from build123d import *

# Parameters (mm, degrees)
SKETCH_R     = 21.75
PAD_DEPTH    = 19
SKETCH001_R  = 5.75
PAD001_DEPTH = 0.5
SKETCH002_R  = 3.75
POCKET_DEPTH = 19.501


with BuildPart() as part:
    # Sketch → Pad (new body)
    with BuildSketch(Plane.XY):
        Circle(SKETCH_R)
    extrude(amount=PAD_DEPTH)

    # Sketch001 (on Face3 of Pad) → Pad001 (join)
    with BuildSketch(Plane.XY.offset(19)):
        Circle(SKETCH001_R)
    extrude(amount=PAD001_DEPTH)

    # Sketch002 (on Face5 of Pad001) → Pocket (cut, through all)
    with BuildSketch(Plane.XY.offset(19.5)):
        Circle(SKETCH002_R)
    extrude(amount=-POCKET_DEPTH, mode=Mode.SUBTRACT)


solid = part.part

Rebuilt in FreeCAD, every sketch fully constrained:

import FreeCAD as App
import Part
import Sketcher
from FreeCAD import Vector
Q = App.Units.Quantity

doc = App.newDocument("Part")
body = doc.addObject("PartDesign::Body", "Body")

# Sketch on XY plane
sketch1 = body.newObject("Sketcher::SketchObject", "Sketch")
sketch1.AttachmentSupport = (doc.getObject("XY_Plane"), [""])
sketch1.MapMode = "FlatFace"
sketch1.addGeometry(Part.Circle(Vector(0, 0, 0), Vector(0, 0, 1), 22), False)
sketch1.addConstraint([
    Sketcher.Constraint("Coincident", 0, 3, -1, 1),
    Sketcher.Constraint("Diameter", 0, Q("43.5 mm")),
])
pad1 = body.newObject("PartDesign::Pad", "Pad")
pad1.Profile = sketch1
pad1.Length = 19

# Sketch on XY plane
sketch2 = body.newObject("Sketcher::SketchObject", "Sketch001")
sketch2.AttachmentSupport = (doc.getObject("XY_Plane"), [""])
sketch2.MapMode = "FlatFace"
sketch2.AttachmentOffset = App.Placement(Vector(0, 0, 19), App.Rotation())
sketch2.addGeometry(Part.Circle(Vector(0, 0, 0), Vector(0, 0, 1), 6), False)
sketch2.addConstraint([
    Sketcher.Constraint("Coincident", 0, 3, -1, 1),
    Sketcher.Constraint("Diameter", 0, Q("11.5 mm")),
])
pad2 = body.newObject("PartDesign::Pad", "Pad001")
pad2.Profile = sketch2
pad2.Length = 0.5

# Sketch on XY plane
sketch3 = body.newObject("Sketcher::SketchObject", "Sketch002")
sketch3.AttachmentSupport = (doc.getObject("XY_Plane"), [""])
sketch3.MapMode = "FlatFace"
sketch3.AttachmentOffset = App.Placement(Vector(0, 0, 19.5), App.Rotation())
sketch3.addGeometry(Part.Circle(Vector(0, 0, 0), Vector(0, 0, 1), 3.8), False)
sketch3.addConstraint([
    Sketcher.Constraint("Coincident", 0, 3, -1, 1),
    Sketcher.Constraint("Diameter", 0, Q("7.5 mm")),
])
pocket1 = body.newObject("PartDesign::Pocket", "Pocket")
pocket1.Profile = sketch3
pocket1.Type = "ThroughAll"

doc.recompute()
